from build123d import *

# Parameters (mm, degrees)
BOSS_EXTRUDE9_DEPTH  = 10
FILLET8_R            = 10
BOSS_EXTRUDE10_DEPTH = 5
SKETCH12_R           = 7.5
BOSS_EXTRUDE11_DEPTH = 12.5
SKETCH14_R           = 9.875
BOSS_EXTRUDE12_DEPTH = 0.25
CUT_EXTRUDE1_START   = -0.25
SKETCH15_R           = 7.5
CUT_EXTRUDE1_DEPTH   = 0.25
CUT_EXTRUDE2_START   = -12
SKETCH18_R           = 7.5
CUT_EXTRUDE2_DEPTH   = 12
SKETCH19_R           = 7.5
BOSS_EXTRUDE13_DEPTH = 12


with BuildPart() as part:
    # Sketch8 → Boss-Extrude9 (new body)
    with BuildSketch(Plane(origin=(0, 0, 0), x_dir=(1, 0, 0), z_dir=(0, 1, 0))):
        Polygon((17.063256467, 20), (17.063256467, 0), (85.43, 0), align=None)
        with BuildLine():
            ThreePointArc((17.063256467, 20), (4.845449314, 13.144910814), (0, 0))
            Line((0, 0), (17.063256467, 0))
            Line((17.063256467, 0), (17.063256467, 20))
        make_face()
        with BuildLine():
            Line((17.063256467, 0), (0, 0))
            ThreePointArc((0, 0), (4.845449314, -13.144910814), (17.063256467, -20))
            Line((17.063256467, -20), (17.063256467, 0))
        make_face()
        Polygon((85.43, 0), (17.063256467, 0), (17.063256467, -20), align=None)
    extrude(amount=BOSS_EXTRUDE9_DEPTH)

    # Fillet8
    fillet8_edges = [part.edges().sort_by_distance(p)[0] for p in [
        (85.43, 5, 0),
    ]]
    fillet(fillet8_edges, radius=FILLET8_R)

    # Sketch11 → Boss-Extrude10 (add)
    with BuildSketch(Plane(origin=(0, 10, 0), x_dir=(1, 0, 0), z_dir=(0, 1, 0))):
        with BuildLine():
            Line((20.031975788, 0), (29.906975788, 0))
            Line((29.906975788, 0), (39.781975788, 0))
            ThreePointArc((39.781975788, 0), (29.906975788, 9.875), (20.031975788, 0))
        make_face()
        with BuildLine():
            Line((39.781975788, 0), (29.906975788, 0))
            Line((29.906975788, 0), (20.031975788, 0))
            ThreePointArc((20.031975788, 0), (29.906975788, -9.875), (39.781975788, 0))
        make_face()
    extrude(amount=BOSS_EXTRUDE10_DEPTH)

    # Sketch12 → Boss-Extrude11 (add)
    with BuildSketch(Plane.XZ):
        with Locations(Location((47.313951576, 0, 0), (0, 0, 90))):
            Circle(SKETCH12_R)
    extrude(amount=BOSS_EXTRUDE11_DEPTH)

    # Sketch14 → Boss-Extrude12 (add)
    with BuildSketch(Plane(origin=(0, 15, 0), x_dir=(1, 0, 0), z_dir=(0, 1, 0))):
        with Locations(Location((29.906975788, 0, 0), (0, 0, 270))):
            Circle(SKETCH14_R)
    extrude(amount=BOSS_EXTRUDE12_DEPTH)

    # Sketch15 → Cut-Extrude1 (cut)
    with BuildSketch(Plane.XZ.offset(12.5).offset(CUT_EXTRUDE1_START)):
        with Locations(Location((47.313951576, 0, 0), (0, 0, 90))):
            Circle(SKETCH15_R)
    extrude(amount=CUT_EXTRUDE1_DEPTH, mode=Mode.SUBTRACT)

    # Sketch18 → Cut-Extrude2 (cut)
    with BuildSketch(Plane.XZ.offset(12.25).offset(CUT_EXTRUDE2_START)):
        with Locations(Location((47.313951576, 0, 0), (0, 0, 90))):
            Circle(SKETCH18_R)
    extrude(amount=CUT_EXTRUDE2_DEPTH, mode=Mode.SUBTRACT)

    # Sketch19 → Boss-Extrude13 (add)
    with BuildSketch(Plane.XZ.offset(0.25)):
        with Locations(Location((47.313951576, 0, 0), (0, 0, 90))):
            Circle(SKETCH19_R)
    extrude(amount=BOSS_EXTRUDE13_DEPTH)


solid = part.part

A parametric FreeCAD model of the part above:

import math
import FreeCAD as App
import Part
import Sketcher
Q = App.Units.Quantity


def edges_at(feature, points):
    """Names of the edges that pass closest to the given points."""
    edges = feature.Shape.Edges
    near = lambda p: min(range(len(edges)), key=lambda i: edges[i].distToShape(Part.Vertex(*p))[0])
    return sorted({f"Edge{near(p) + 1}" for p in points})

doc = App.newDocument("Part")
body = doc.addObject("PartDesign::Body", "Body")

sketch1 = doc.addObject("Sketcher::SketchObject", "Sketch")
body.addObject(sketch1)
sketch1.AttachmentSupport = (doc.XZ_Plane, [""])
sketch1.MapMode = "FlatFace"
sketch1.addGeometry([
    Part.LineSegment(App.Vector(85, 0, 0), App.Vector(17, -20, 0)),
    Part.ArcOfCircle(Part.Circle(App.Vector(20, 0, 0), App.Vector(0, 0, 1), 20), math.radians(180), math.radians(261)),
    Part.ArcOfCircle(Part.Circle(App.Vector(20, 0, 0), App.Vector(0, 0, 1), 20), math.radians(99), math.radians(180)),
    Part.LineSegment(App.Vector(17, 20, 0), App.Vector(85, 0, 0)),
], False)
sketch1.addConstraint([
    Sketcher.Constraint("Coincident", 0, 2, 1, 2),
    Sketcher.Constraint("Tangent", 1, 1, 2, 2),
    Sketcher.Constraint("Coincident", 2, 1, 3, 1),
    Sketcher.Constraint("Coincident", 3, 2, 0, 1),
    Sketcher.Constraint("Coincident", 1, 1, -1, 1),
    Sketcher.Constraint("Equal", 1, 2),
    Sketcher.Constraint("Symmetric", 0, 2, 2, 1, -1),
    Sketcher.Constraint("PointOnObject", 3, 2, -1),
    Sketcher.Constraint("DistanceY", 0, 2, -1, 1, Q("20 mm")),
    Sketcher.Constraint("DistanceX", -1, 1, 3, 2, Q("85.43 mm")),
    Sketcher.Constraint("Radius", 1, Q("20.25272 mm")),
])
pad1 = doc.addObject("PartDesign::Pad", "Pad")
body.addObject(pad1)
pad1.Profile = sketch1
pad1.Length = 10
pad1.Reversed = True
doc.recompute()

fillet = doc.addObject("PartDesign::Fillet", "Fillet")
body.addObject(fillet)
fillet.Base = (pad1, edges_at(pad1, [(85.43, 5, 0)]))
fillet.Radius = 10

sketch2 = doc.addObject("Sketcher::SketchObject", "Sketch001")
body.addObject(sketch2)
sketch2.AttachmentSupport = (doc.XZ_Plane, [""])
sketch2.MapMode = "FlatFace"
sketch2.AttachmentOffset = App.Placement(App.Vector(0, 0, -10), App.Rotation())
sketch2.addGeometry(Part.Circle(App.Vector(30, 0, 0), App.Vector(0, 0, 1), 10), False)
sketch2.addConstraint([
    Sketcher.Constraint("PointOnObject", 0, 3, -1),
    Sketcher.Constraint("Diameter", 0, Q("19.75 mm")),
    Sketcher.Constraint("DistanceX", -1, 1, 0, 3, Q("29.906976 mm")),
])
pad2 = doc.addObject("PartDesign::Pad", "Pad001")
body.addObject(pad2)
pad2.Profile = sketch2
pad2.Length = 5
pad2.Reversed = True

sketch3 = doc.addObject("Sketcher::SketchObject", "Sketch002")
body.addObject(sketch3)
sketch3.AttachmentSupport = (doc.XZ_Plane, [""])
sketch3.MapMode = "FlatFace"
sketch3.addGeometry(Part.Circle(App.Vector(47, 0, 0), App.Vector(0, 0, 1), 8), False)
sketch3.addConstraint([
    Sketcher.Constraint("PointOnObject", 0, 3, -1),
    Sketcher.Constraint("Diameter", 0, Q("15 mm")),
    Sketcher.Constraint("DistanceX", -1, 1, 0, 3, Q("47.313952 mm")),
])
pad3 = doc.addObject("PartDesign::Pad", "Pad002")
body.addObject(pad3)
pad3.Profile = sketch3
pad3.Length = 12.5

sketch4 = doc.addObject("Sketcher::SketchObject", "Sketch003")
body.addObject(sketch4)
sketch4.AttachmentSupport = (doc.XZ_Plane, [""])
sketch4.MapMode = "FlatFace"
sketch4.AttachmentOffset = App.Placement(App.Vector(0, 0, -15), App.Rotation())
sketch4.addGeometry(Part.Circle(App.Vector(30, 0, 0), App.Vector(0, 0, 1), 10), False)
sketch4.addConstraint([
    Sketcher.Constraint("PointOnObject", 0, 3, -1),
    Sketcher.Constraint("Diameter", 0, Q("19.75 mm")),
    Sketcher.Constraint("DistanceX", -1, 1, 0, 3, Q("29.906976 mm")),
])
pad4 = doc.addObject("PartDesign::Pad", "Pad003")
body.addObject(pad4)
pad4.Profile = sketch4
pad4.Length = 0.25
pad4.Reversed = True

sketch5 = doc.addObject("Sketcher::SketchObject", "Sketch004")
body.addObject(sketch5)
sketch5.AttachmentSupport = (doc.XZ_Plane, [""])
sketch5.MapMode = "FlatFace"
sketch5.AttachmentOffset = App.Placement(App.Vector(0, 0, 12.25), App.Rotation())
sketch5.addGeometry(Part.Circle(App.Vector(47, 0, 0), App.Vector(0, 0, 1), 8), False)
sketch5.addConstraint([
    Sketcher.Constraint("PointOnObject", 0, 3, -1),
    Sketcher.Constraint("Diameter", 0, Q("15 mm")),
    Sketcher.Constraint("DistanceX", -1, 1, 0, 3, Q("47.313952 mm")),
])
pocket1 = doc.addObject("PartDesign::Pocket", "Pocket")
body.addObject(pocket1)
pocket1.Profile = sketch5
pocket1.Length = 0.25
pocket1.Reversed = True

sketch6 = doc.addObject("Sketcher::SketchObject", "Sketch005")
body.addObject(sketch6)
sketch6.AttachmentSupport = (doc.XZ_Plane, [""])
sketch6.MapMode = "FlatFace"
sketch6.AttachmentOffset = App.Placement(App.Vector(0, 0, 0.25), App.Rotation())
sketch6.addGeometry(Part.Circle(App.Vector(47, 0, 0), App.Vector(0, 0, 1), 8), False)
sketch6.addConstraint([
    Sketcher.Constraint("PointOnObject", 0, 3, -1),
    Sketcher.Constraint("Diameter", 0, Q("15 mm")),
    Sketcher.Constraint("DistanceX", -1, 1, 0, 3, Q("47.313952 mm")),
])
pocket2 = doc.addObject("PartDesign::Pocket", "Pocket001")
body.addObject(pocket2)
pocket2.Profile = sketch6
pocket2.Length = 12
pocket2.Reversed = True

sketch7 = doc.addObject("Sketcher::SketchObject", "Sketch006")
body.addObject(sketch7)
sketch7.AttachmentSupport = (doc.XZ_Plane, [""])
sketch7.MapMode = "FlatFace"
sketch7.AttachmentOffset = App.Placement(App.Vector(0, 0, 0.25), App.Rotation())
sketch7.addGeometry(Part.Circle(App.Vector(47, 0, 0), App.Vector(0, 0, 1), 8), False)
sketch7.addConstraint([
    Sketcher.Constraint("PointOnObject", 0, 3, -1),
    Sketcher.Constraint("Diameter", 0, Q("15 mm")),
    Sketcher.Constraint("DistanceX", -1, 1, 0, 3, Q("47.313952 mm")),
])
pad5 = doc.addObject("PartDesign::Pad", "Pad004")
body.addObject(pad5)
pad5.Profile = sketch7
pad5.Length = 12

doc.recompute()
